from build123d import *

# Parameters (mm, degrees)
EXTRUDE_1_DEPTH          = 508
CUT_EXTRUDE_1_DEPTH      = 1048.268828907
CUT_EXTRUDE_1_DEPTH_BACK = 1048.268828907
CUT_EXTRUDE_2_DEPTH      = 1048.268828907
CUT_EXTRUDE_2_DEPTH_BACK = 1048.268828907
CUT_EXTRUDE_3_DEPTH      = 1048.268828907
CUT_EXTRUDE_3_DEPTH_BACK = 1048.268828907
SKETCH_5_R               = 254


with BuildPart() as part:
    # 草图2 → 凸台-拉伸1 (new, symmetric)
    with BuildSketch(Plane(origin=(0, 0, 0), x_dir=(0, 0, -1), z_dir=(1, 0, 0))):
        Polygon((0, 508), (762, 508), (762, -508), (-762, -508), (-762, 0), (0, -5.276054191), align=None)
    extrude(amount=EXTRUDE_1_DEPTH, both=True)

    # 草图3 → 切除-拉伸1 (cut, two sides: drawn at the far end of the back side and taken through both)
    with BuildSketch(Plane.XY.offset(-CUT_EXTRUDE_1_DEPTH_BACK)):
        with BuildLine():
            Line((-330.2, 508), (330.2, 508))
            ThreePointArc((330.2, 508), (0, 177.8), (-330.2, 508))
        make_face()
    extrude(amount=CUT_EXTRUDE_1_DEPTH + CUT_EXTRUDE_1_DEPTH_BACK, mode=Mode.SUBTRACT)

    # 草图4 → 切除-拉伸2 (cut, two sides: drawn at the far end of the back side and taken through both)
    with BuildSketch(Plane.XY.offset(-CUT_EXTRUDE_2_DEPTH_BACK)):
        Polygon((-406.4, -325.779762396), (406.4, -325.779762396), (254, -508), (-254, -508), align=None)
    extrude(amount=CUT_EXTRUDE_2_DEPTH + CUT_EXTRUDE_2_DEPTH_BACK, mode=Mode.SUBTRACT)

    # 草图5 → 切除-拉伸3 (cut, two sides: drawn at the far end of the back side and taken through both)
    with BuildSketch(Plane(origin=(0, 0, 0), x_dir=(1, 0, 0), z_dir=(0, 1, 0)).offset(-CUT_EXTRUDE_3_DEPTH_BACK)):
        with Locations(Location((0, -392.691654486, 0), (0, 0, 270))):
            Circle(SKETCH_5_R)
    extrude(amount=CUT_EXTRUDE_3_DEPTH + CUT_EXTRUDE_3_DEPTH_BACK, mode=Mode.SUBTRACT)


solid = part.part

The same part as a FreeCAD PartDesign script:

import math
import FreeCAD as App
import Part
import Sketcher
from FreeCAD import Vector
Q = App.Units.Quantity

doc = App.newDocument("Part")
params = doc.addObject("Spreadsheet::Sheet", "Params")
for row, (alias, value) in enumerate([
    ("sketch1_width", "20 in"),
    ("sketch1_height", "30 in"),
    ("pad1_length", "40 in"),
    ("sketch2_radius", "13 in"),
    ("sketch3_width", "32 in"),
    ("sketch3_width2", "20 in"),
    ("sketch4_diameter", "20 in"),
], start=1):
    params.set(f"A{row}", alias)
    params.set(f"B{row}", "=" + value)
    params.setAlias(f"B{row}", alias)

body = doc.addObject("PartDesign::Body", "Body")

# Sketch on YZ plane
sketch1 = body.newObject("Sketcher::SketchObject", "Sketch")
sketch1.AttachmentSupport = (doc.getObject("YZ_Plane"), [""])
sketch1.MapMode = "FlatFace"
sketch1.addGeometry([
    Part.LineSegment(Vector(508, -762, 0), Vector(508, 0, 0)),  # 0
    Part.LineSegment(Vector(508, 0, 0), Vector(-5, 0, 0)),  # 1
    Part.LineSegment(Vector(-5, 0, 0), Vector(0, 762, 0)),  # 2
    Part.LineSegment(Vector(0, 762, 0), Vector(-508, 762, 0)),  # 3
    Part.LineSegment(Vector(-508, 762, 0), Vector(-508, -762, 0)),  # 4
    Part.LineSegment(Vector(-508, -762, 0), Vector(508, -762, 0)),  # 5
], False)
sketch1.addConstraint([
    Sketcher.Constraint("Coincident", 0, 2, 1, 1),
    Sketcher.Constraint("Coincident", 1, 2, 2, 1),
    Sketcher.Constraint("Coincident", 2, 2, 3, 1),
    Sketcher.Constraint("Coincident", 3, 2, 4, 1),
    Sketcher.Constraint("Coincident", 4, 2, 5, 1),
    Sketcher.Constraint("Coincident", 5, 2, 0, 1),
    Sketcher.Constraint("Vertical", 0),
    Sketcher.Constraint("Horizontal", 1),
    Sketcher.Constraint("Horizontal", 3),
    Sketcher.Constraint("Vertical", 4),
    Sketcher.Constraint("Horizontal", 5),
    Sketcher.Constraint("Symmetric", 3, 2, 5, 2, -1, 1),
    Sketcher.Constraint("PointOnObject", 0, 2, -1),
    Sketcher.Constraint("PointOnObject", 2, 2, -2),
    Sketcher.Constraint("DistanceX", 3, 2, 3, 1, Q("20 in")),
    Sketcher.Constraint("DistanceY", 0, 1, 0, 2, Q("30 in")),
    Sketcher.Constraint("DistanceX", 1, 2, 1, 1, 513.276054),
])
sketch1.setExpression("Constraints[14]", "Params.sketch1_width")
sketch1.setExpression("Constraints[15]", "Params.sketch1_height")
pad1 = body.newObject("PartDesign::Pad", "Pad")
pad1.Profile = sketch1
pad1.setExpression("Length", "Params.pad1_length")
pad1.Midplane = True

# Sketch on XY plane
sketch2 = body.newObject("Sketcher::SketchObject", "Sketch001")
sketch2.AttachmentSupport = (doc.getObject("XY_Plane"), [""])
sketch2.MapMode = "FlatFace"
sketch2.addGeometry([
    Part.LineSegment(Vector(330, 508, 0), Vector(-330, 508, 0)),
    Part.ArcOfCircle(Part.Circle(Vector(0, 508, 0), Vector(0, 0, 1), 330), math.radians(180), math.radians(360)),
], False)
sketch2.addConstraint([
    Sketcher.Constraint("Coincident", 0, 1, 1, 2),
    Sketcher.Constraint("Coincident", 1, 1, 0, 2),
    Sketcher.Constraint("Horizontal", 0),
    Sketcher.Constraint("PointOnObject", 1, 3, -2),
    Sketcher.Constraint("Horizontal", 1, 3, 0, 1),
    Sketcher.Constraint("Radius", 1, Q("13 in")),
    Sketcher.Constraint("DistanceY", -1, 1, 1, 3, Q("20 in")),
])
sketch2.setExpression("Constraints[5]", "Params.sketch2_radius")
pocket1 = body.newObject("PartDesign::Pocket", "Pocket")
pocket1.Profile = sketch2
pocket1.Type = "ThroughAll"
pocket1.Midplane = True

# Sketch on XY plane
sketch3 = body.newObject("Sketcher::SketchObject", "Sketch002")
sketch3.AttachmentSupport = (doc.getObject("XY_Plane"), [""])
sketch3.MapMode = "FlatFace"
sketch3.addGeometry([
    Part.LineSegment(Vector(406, -326, 0), Vector(-406, -326, 0)),
    Part.LineSegment(Vector(-406, -326, 0), Vector(-254, -508, 0)),
    Part.LineSegment(Vector(-254, -508, 0), Vector(254, -508, 0)),
    Part.LineSegment(Vector(254, -508, 0), Vector(406, -326, 0)),
], False)
sketch3.addConstraint([
    Sketcher.Constraint("Coincident", 0, 2, 1, 1),
    Sketcher.Constraint("Coincident", 1, 2, 2, 1),
    Sketcher.Constraint("Coincident", 2, 2, 3, 1),
    Sketcher.Constraint("Coincident", 3, 2, 0, 1),
    Sketcher.Constraint("Horizontal", 0),
    Sketcher.Constraint("Horizontal", 2),
    Sketcher.Constraint("Equal", 1, 3),
    Sketcher.Constraint("DistanceX", 0, 2, 0, 1, Q("32 in")),
    Sketcher.Constraint("DistanceX", 2, 1, 2, 2, Q("20 in")),
    Sketcher.Constraint("DistanceX", 0, 2, -1, 1, Q("16 in")),
    Sketcher.Constraint("DistanceY", 1, 2, -1, 1, Q("20 in")),
    Sketcher.Constraint("Distance", 1, 237.549942),
])
sketch3.setExpression("Constraints[7]", "Params.sketch3_width")
sketch3.setExpression("Constraints[8]", "Params.sketch3_width2")
pocket2 = body.newObject("PartDesign::Pocket", "Pocket001")
pocket2.Profile = sketch3
pocket2.Type = "ThroughAll"
pocket2.Midplane = True

# Sketch on XZ plane
sketch4 = body.newObject("Sketcher::SketchObject", "Sketch003")
sketch4.AttachmentSupport = (doc.getObject("XZ_Plane"), [""])
sketch4.MapMode = "FlatFace"
sketch4.addGeometry(Part.Circle(Vector(0, 393, 0), Vector(0, 0, 1), 254), False)
sketch4.addConstraint([
    Sketcher.Constraint("PointOnObject", 0, 3, -2),
    Sketcher.Constraint("Diameter", 0, Q("20 in")),
    Sketcher.Constraint("DistanceY", -1, 1, 0, 3, 392.691654),
])
sketch4.setExpression("Constraints[1]", "Params.sketch4_diameter")
pocket3 = body.newObject("PartDesign::Pocket", "Pocket002")
pocket3.Profile = sketch4
pocket3.Type = "ThroughAll"
pocket3.Midplane = True

doc.recompute()
